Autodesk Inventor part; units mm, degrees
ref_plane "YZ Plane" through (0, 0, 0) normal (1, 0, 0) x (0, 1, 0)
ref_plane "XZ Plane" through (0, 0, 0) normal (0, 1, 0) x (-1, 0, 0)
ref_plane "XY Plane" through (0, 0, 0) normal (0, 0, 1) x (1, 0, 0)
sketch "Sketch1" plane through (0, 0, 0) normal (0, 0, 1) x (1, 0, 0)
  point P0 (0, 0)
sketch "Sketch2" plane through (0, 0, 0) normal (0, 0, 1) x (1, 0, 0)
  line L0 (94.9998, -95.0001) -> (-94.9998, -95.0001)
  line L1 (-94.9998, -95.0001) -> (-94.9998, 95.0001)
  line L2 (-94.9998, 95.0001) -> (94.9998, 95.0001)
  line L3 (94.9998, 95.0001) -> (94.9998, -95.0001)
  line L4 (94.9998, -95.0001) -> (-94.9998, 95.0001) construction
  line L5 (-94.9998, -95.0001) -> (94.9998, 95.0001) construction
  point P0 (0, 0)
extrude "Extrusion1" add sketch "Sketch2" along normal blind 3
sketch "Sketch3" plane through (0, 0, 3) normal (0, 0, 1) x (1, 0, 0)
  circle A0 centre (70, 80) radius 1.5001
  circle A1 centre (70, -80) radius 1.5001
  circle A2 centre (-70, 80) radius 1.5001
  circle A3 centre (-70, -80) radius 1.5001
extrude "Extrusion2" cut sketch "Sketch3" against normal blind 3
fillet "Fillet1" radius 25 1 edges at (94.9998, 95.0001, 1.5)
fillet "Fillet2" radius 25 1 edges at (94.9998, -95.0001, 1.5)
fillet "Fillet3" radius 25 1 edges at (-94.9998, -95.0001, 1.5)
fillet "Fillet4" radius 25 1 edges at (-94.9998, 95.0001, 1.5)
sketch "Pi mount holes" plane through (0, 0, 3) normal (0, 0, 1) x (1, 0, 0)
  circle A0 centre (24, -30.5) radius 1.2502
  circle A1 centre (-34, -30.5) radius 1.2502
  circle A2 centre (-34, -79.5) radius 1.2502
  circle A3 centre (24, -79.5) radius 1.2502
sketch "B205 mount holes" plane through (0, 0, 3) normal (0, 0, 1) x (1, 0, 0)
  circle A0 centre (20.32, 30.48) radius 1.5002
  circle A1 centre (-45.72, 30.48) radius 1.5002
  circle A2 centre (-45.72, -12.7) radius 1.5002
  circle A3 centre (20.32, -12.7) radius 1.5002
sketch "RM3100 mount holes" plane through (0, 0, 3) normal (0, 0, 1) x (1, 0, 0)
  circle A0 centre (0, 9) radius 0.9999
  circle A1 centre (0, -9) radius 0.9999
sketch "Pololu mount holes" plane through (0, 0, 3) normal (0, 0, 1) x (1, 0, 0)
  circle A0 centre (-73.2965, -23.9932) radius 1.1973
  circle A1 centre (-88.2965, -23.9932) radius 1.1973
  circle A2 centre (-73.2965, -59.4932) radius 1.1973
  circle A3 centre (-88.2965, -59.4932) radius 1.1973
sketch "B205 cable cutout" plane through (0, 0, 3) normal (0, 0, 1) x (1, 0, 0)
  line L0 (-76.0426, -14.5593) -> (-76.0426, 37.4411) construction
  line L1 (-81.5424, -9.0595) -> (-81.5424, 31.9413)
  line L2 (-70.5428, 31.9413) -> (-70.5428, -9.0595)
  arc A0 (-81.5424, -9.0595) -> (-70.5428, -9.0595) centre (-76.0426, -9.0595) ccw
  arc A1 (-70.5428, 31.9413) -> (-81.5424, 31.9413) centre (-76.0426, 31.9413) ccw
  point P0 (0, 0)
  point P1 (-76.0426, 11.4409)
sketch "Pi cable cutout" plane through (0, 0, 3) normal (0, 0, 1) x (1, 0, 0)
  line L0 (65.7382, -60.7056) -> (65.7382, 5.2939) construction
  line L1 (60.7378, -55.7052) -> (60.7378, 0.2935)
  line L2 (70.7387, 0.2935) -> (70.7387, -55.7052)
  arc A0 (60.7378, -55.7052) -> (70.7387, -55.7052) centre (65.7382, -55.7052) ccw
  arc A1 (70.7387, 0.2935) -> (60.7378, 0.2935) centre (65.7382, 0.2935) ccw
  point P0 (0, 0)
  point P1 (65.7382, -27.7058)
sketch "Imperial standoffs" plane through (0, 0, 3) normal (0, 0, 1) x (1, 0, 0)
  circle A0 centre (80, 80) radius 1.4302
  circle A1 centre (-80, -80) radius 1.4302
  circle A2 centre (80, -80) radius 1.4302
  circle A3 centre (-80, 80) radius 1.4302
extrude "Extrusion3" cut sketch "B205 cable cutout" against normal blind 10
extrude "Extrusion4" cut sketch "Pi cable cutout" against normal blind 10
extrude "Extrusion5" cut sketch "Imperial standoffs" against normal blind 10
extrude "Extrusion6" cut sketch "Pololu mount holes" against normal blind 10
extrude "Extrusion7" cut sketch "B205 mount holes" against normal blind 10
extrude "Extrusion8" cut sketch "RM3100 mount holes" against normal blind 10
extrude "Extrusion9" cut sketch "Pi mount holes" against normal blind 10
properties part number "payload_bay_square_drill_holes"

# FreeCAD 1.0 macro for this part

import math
import FreeCAD as App
import Part
import Sketcher


def edges_at(feature, points):
    """Names of the edges that pass closest to the given points."""
    edges = feature.Shape.Edges
    near = lambda p: min(range(len(edges)), key=lambda i: edges[i].distToShape(Part.Vertex(*p))[0])
    return sorted({f"Edge{near(p) + 1}" for p in points})


def add_polygon(sketch, points):
    """Adds a closed chain of lines whose ends are joined by coincident constraints."""
    first, n = sketch.GeometryCount, len(points)
    for a, b in zip(points, points[1:] + points[:1]):
        sketch.addGeometry(Part.LineSegment(App.Vector(*a, 0), App.Vector(*b, 0)), False)
    for i in range(n):
        sketch.addConstraint(Sketcher.Constraint("Coincident", first + i, 2, first + (i + 1) % n, 1))

doc = App.newDocument("Part")
params = doc.addObject("Spreadsheet::Sheet", "Params")
for row, (alias, value) in enumerate([
    ("pad1_length", "3 mm"),
    ("pocket1_length", "3 mm"),
    ("fillet_radius", "25 mm"),
    ("fillet2_radius", "25 mm"),
    ("fillet3_radius", "25 mm"),
    ("fillet4_radius", "25 mm"),
    ("pocket2_length", "10 mm"),
    ("pocket3_length", "10 mm"),
    ("pocket4_length", "10 mm"),
    ("pocket5_length", "10 mm"),
    ("pocket6_length", "10 mm"),
    ("pocket7_length", "10 mm"),
    ("pocket8_length", "10 mm"),
], start=1):
    params.set(f"A{row}", alias)
    params.set(f"B{row}", "=" + value)
    params.setAlias(f"B{row}", alias)

body = doc.addObject("PartDesign::Body", "Body")

# Sketch on XY plane
sketch1 = body.newObject("Sketcher::SketchObject", "Sketch")
sketch1.AttachmentSupport = (doc.getObject("XY_Plane"), [""])
sketch1.MapMode = "FlatFace"
add_polygon(sketch1, [(-95, -95), (95, -95), (95, 95), (-95, 95)])  # lines 0-3
sketch1.addConstraint([
    Sketcher.Constraint("Horizontal", 0),
    Sketcher.Constraint("Vertical", 1),
    Sketcher.Constraint("Horizontal", 2),
    Sketcher.Constraint("Vertical", 3),
    Sketcher.Constraint("Symmetric", 0, 2, 2, 2, -1, 1),
    Sketcher.Constraint("DistanceY", 0, 2, -1, 1, 95.0),
    Sketcher.Constraint("DistanceX", 0, 1, 0, 2, 189.9996),
])
pad1 = body.newObject("PartDesign::Pad", "Pad")
pad1.Profile = sketch1
pad1.setExpression("Length", "Params.pad1_length")

# Sketch on XY plane
sketch2 = body.newObject("Sketcher::SketchObject", "Sketch001")
sketch2.AttachmentSupport = (doc.getObject("XY_Plane"), [""])
sketch2.MapMode = "FlatFace"
sketch2.AttachmentOffset = App.Placement(App.Vector(0, 0, 3), App.Rotation())
sketch2.addGeometry([
    Part.Circle(App.Vector(70, 80, 0), App.Vector(0, 0, 1), 1.5),
    Part.Circle(App.Vector(70, -80, 0), App.Vector(0, 0, 1), 1.5),
    Part.Circle(App.Vector(-70, 80, 0), App.Vector(0, 0, 1), 1.5),
    Part.Circle(App.Vector(-70, -80, 0), App.Vector(0, 0, 1), 1.5),
], False)
sketch2.addConstraint([
    Sketcher.Constraint("Equal", 0, 1),
    Sketcher.Constraint("Equal", 1, 2),
    Sketcher.Constraint("Equal", 2, 3),
    Sketcher.Constraint("Symmetric", 1, 3, 2, 3, -1, 1),
    Sketcher.Constraint("Symmetric", 0, 3, 3, 3, -1, 1),
    Sketcher.Constraint("Symmetric", 0, 3, 2, 3, -2),
    Sketcher.Constraint("DistanceX", -1, 1, 0, 3, 70.0),
    Sketcher.Constraint("DistanceY", -1, 1, 0, 3, 80.0),
    Sketcher.Constraint("Diameter", 0, 3.0002),
])
pocket1 = body.newObject("PartDesign::Pocket", "Pocket")
pocket1.Profile = sketch2
pocket1.setExpression("Length", "Params.pocket1_length")
doc.recompute()

fillet = body.newObject("PartDesign::Fillet", "Fillet")
fillet.Base = (pocket1, edges_at(pocket1, [(95, 95, 1.5)]))
fillet.setExpression("Radius", "Params.fillet_radius")
doc.recompute()

fillet2 = body.newObject("PartDesign::Fillet", "Fillet001")
fillet2.Base = (fillet, edges_at(fillet, [(95, -95, 1.5)]))
fillet2.setExpression("Radius", "Params.fillet2_radius")
doc.recompute()

fillet3 = body.newObject("PartDesign::Fillet", "Fillet002")
fillet3.Base = (fillet2, edges_at(fillet2, [(-95, -95, 1.5)]))
fillet3.setExpression("Radius", "Params.fillet3_radius")
doc.recompute()

fillet4 = body.newObject("PartDesign::Fillet", "Fillet003")
fillet4.Base = (fillet3, edges_at(fillet3, [(-95, 95, 1.5)]))
fillet4.setExpression("Radius", "Params.fillet4_radius")

# Sketch on XY plane
sketch3 = body.newObject("Sketcher::SketchObject", "Sketch002")
sketch3.AttachmentSupport = (doc.getObject("XY_Plane"), [""])
sketch3.MapMode = "FlatFace"
sketch3.AttachmentOffset = App.Placement(App.Vector(0, 0, 3), App.Rotation())
sketch3.addGeometry([
    Part.LineSegment(App.Vector(-82, 32, 0), App.Vector(-82, -9, 0)),
    Part.ArcOfCircle(Part.Circle(App.Vector(-76, -9, 0), App.Vector(0, 0, 1), 5), math.radians(180), math.radians(360)),
    Part.LineSegment(App.Vector(-71, -9, 0), App.Vector(-71, 32, 0)),
    Part.ArcOfCircle(Part.Circle(App.Vector(-76, 32, 0), App.Vector(0, 0, 1), 5), math.radians(0), math.radians(180)),
], False)
sketch3.addConstraint([
    Sketcher.Constraint("Tangent", 0, 2, 1, 1),
    Sketcher.Constraint("Tangent", 1, 2, 2, 1),
    Sketcher.Constraint("Tangent", 2, 2, 3, 1),
    Sketcher.Constraint("Tangent", 3, 2, 0, 1),
    Sketcher.Constraint("Vertical", 0),
    Sketcher.Constraint("Vertical", 2),
    Sketcher.Constraint("Radius", 1, 5.4998),
    Sketcher.Constraint("DistanceY", 0, 2, 0, 1, 41.0008),
    Sketcher.Constraint("DistanceX", 1, 3, -1, 1, 76.0426),
    Sketcher.Constraint("DistanceY", 1, 3, -1, 1, 9.0595),
])
pocket2 = body.newObject("PartDesign::Pocket", "Pocket001")
pocket2.Profile = sketch3
pocket2.setExpression("Length", "Params.pocket2_length")

# Sketch on XY plane
sketch4 = body.newObject("Sketcher::SketchObject", "Sketch003")
sketch4.AttachmentSupport = (doc.getObject("XY_Plane"), [""])
sketch4.MapMode = "FlatFace"
sketch4.AttachmentOffset = App.Placement(App.Vector(0, 0, 3), App.Rotation())
sketch4.addGeometry([
    Part.LineSegment(App.Vector(61, 0, 0), App.Vector(61, -56, 0)),
    Part.ArcOfCircle(Part.Circle(App.Vector(66, -56, 0), App.Vector(0, 0, 1), 5), math.radians(180), math.radians(360)),
    Part.LineSegment(App.Vector(71, -56, 0), App.Vector(71, 0, 0)),
    Part.ArcOfCircle(Part.Circle(App.Vector(66, 0, 0), App.Vector(0, 0, 1), 5), math.radians(0), math.radians(180)),
], False)
sketch4.addConstraint([
    Sketcher.Constraint("Tangent", 0, 2, 1, 1),
    Sketcher.Constraint("Tangent", 1, 2, 2, 1),
    Sketcher.Constraint("Tangent", 2, 2, 3, 1),
    Sketcher.Constraint("Tangent", 3, 2, 0, 1),
    Sketcher.Constraint("Vertical", 0),
    Sketcher.Constraint("Vertical", 2),
    Sketcher.Constraint("Radius", 1, 5.0004),
    Sketcher.Constraint("DistanceY", 0, 2, 0, 1, 55.9987),
    Sketcher.Constraint("DistanceX", -1, 1, 1, 3, 65.7382),
    Sketcher.Constraint("DistanceY", 1, 3, -1, 1, 55.7052),
])
pocket3 = body.newObject("PartDesign::Pocket", "Pocket002")
pocket3.Profile = sketch4
pocket3.setExpression("Length", "Params.pocket3_length")

# Sketch on XY plane
sketch5 = body.newObject("Sketcher::SketchObject", "Sketch004")
sketch5.AttachmentSupport = (doc.getObject("XY_Plane"), [""])
sketch5.MapMode = "FlatFace"
sketch5.AttachmentOffset = App.Placement(App.Vector(0, 0, 3), App.Rotation())
sketch5.addGeometry([
    Part.Circle(App.Vector(80, 80, 0), App.Vector(0, 0, 1), 1.4),
    Part.Circle(App.Vector(-80, -80, 0), App.Vector(0, 0, 1), 1.4),
    Part.Circle(App.Vector(80, -80, 0), App.Vector(0, 0, 1), 1.4),
    Part.Circle(App.Vector(-80, 80, 0), App.Vector(0, 0, 1), 1.4),
], False)
sketch5.addConstraint([
    Sketcher.Constraint("Equal", 0, 1),
    Sketcher.Constraint("Equal", 1, 2),
    Sketcher.Constraint("Equal", 2, 3),
    Sketcher.Constraint("Symmetric", 0, 3, 1, 3, -1, 1),
    Sketcher.Constraint("Symmetric", 2, 3, 3, 3, -1, 1),
    Sketcher.Constraint("Symmetric", 1, 3, 2, 3, -2),
    Sketcher.Constraint("DistanceX", -1, 1, 0, 3, 80.0),
    Sketcher.Constraint("DistanceY", -1, 1, 0, 3, 80.0),
    Sketcher.Constraint("Diameter", 0, 2.8604),
])
pocket4 = body.newObject("PartDesign::Pocket", "Pocket003")
pocket4.Profile = sketch5
pocket4.setExpression("Length", "Params.pocket4_length")

# Sketch on XY plane
sketch6 = body.newObject("Sketcher::SketchObject", "Sketch005")
sketch6.AttachmentSupport = (doc.getObject("XY_Plane"), [""])
sketch6.MapMode = "FlatFace"
sketch6.AttachmentOffset = App.Placement(App.Vector(0, 0, 3), App.Rotation())
sketch6.addGeometry([
    Part.Circle(App.Vector(-73.3, -24, 0), App.Vector(0, 0, 1), 1.2),
    Part.Circle(App.Vector(-88.3, -24, 0), App.Vector(0, 0, 1), 1.2),
    Part.Circle(App.Vector(-73.3, -59.5, 0), App.Vector(0, 0, 1), 1.2),
    Part.Circle(App.Vector(-88.3, -59.5, 0), App.Vector(0, 0, 1), 1.2),
], False)
sketch6.addConstraint([
    Sketcher.Constraint("Equal", 0, 1),
    Sketcher.Constraint("Equal", 1, 2),
    Sketcher.Constraint("Equal", 2, 3),
    Sketcher.Constraint("Horizontal", 0, 3, 1, 3),
    Sketcher.Constraint("Horizontal", 2, 3, 3, 3),
    Sketcher.Constraint("Vertical", 0, 3, 2, 3),
    Sketcher.Constraint("Vertical", 1, 3, 3, 3),
    Sketcher.Constraint("DistanceX", 1, 3, 0, 3, 15.0),
    Sketcher.Constraint("Diameter", 0, 2.3946),
    Sketcher.Constraint("DistanceY", 2, 3, 0, 3, 35.5),
    Sketcher.Constraint("DistanceX", 0, 3, -1, 1, 73.2965),
    Sketcher.Constraint("DistanceY", 0, 3, -1, 1, 23.9932),
])
pocket5 = body.newObject("PartDesign::Pocket", "Pocket004")
pocket5.Profile = sketch6
pocket5.setExpression("Length", "Params.pocket5_length")

# Sketch on XY plane
sketch7 = body.newObject("Sketcher::SketchObject", "Sketch006")
sketch7.AttachmentSupport = (doc.getObject("XY_Plane"), [""])
sketch7.MapMode = "FlatFace"
sketch7.AttachmentOffset = App.Placement(App.Vector(0, 0, 3), App.Rotation())
sketch7.addGeometry([
    Part.Circle(App.Vector(20.3, 30.5, 0), App.Vector(0, 0, 1), 1.5),
    Part.Circle(App.Vector(-45.7, 30.5, 0), App.Vector(0, 0, 1), 1.5),
    Part.Circle(App.Vector(-45.7, -12.7, 0), App.Vector(0, 0, 1), 1.5),
    Part.Circle(App.Vector(20.3, -12.7, 0), App.Vector(0, 0, 1), 1.5),
], False)
sketch7.addConstraint([
    Sketcher.Constraint("Equal", 0, 1),
    Sketcher.Constraint("Equal", 1, 2),
    Sketcher.Constraint("Equal", 2, 3),
    Sketcher.Constraint("Horizontal", 0, 3, 1, 3),
    Sketcher.Constraint("Horizontal", 2, 3, 3, 3),
    Sketcher.Constraint("Vertical", 1, 3, 2, 3),
    Sketcher.Constraint("Vertical", 0, 3, 3, 3),
    Sketcher.Constraint("Diameter", 0, 3.0004),
    Sketcher.Constraint("DistanceY", 2, 3, -1, 1, 12.7),
    Sketcher.Constraint("DistanceX", -1, 1, 0, 3, 20.32),
    Sketcher.Constraint("DistanceY", -1, 1, 0, 3, 30.48),
    Sketcher.Constraint("DistanceX", 1, 3, -1, 1, 45.72),
])
pocket6 = body.newObject("PartDesign::Pocket", "Pocket005")
pocket6.Profile = sketch7
pocket6.setExpression("Length", "Params.pocket6_length")

# Sketch on XY plane
sketch8 = body.newObject("Sketcher::SketchObject", "Sketch007")
sketch8.AttachmentSupport = (doc.getObject("XY_Plane"), [""])
sketch8.MapMode = "FlatFace"
sketch8.AttachmentOffset = App.Placement(App.Vector(0, 0, 3), App.Rotation())
sketch8.addGeometry([
    Part.Circle(App.Vector(0, 9, 0), App.Vector(0, 0, 1), 1),
    Part.Circle(App.Vector(0, -9, 0), App.Vector(0, 0, 1), 1),
], False)
sketch8.addConstraint([
    Sketcher.Constraint("Equal", 0, 1),
    Sketcher.Constraint("Symmetric", 0, 3, 1, 3, -1, 1),
    Sketcher.Constraint("PointOnObject", 0, 3, -2),
    Sketcher.Constraint("DistanceY", -1, 1, 0, 3, 9.0),
    Sketcher.Constraint("Diameter", 0, 1.9998),
])
pocket7 = body.newObject("PartDesign::Pocket", "Pocket006")
pocket7.Profile = sketch8
pocket7.setExpression("Length", "Params.pocket7_length")

# Sketch on XY plane
sketch9 = body.newObject("Sketcher::SketchObject", "Sketch008")
sketch9.AttachmentSupport = (doc.getObject("XY_Plane"), [""])
sketch9.MapMode = "FlatFace"
sketch9.AttachmentOffset = App.Placement(App.Vector(0, 0, 3), App.Rotation())
sketch9.addGeometry([
    Part.Circle(App.Vector(24, -30.5, 0), App.Vector(0, 0, 1), 1.3),
    Part.Circle(App.Vector(-34, -30.5, 0), App.Vector(0, 0, 1), 1.3),
    Part.Circle(App.Vector(-34, -79.5, 0), App.Vector(0, 0, 1), 1.3),
    Part.Circle(App.Vector(24, -79.5, 0), App.Vector(0, 0, 1), 1.3),
], False)
sketch9.addConstraint([
    Sketcher.Constraint("Equal", 0, 1),
    Sketcher.Constraint("Equal", 1, 2),
    Sketcher.Constraint("Equal", 2, 3),
    Sketcher.Constraint("Horizontal", 0, 3, 1, 3),
    Sketcher.Constraint("Horizontal", 2, 3, 3, 3),
    Sketcher.Constraint("Vertical", 1, 3, 2, 3),
    Sketcher.Constraint("Vertical", 0, 3, 3, 3),
    Sketcher.Constraint("DistanceX", -1, 1, 0, 3, 24.0),
    Sketcher.Constraint("DistanceX", 1, 3, -1, 1, 34.0),
    Sketcher.Constraint("DistanceY", 2, 3, 1, 3, 49.0),
    Sketcher.Constraint("Diameter", 0, 2.5004),
    Sketcher.Constraint("DistanceY", 0, 3, -1, 1, 30.5),
])
pocket8 = body.newObject("PartDesign::Pocket", "Pocket007")
pocket8.Profile = sketch9
pocket8.setExpression("Length", "Params.pocket8_length")

doc.recompute()
